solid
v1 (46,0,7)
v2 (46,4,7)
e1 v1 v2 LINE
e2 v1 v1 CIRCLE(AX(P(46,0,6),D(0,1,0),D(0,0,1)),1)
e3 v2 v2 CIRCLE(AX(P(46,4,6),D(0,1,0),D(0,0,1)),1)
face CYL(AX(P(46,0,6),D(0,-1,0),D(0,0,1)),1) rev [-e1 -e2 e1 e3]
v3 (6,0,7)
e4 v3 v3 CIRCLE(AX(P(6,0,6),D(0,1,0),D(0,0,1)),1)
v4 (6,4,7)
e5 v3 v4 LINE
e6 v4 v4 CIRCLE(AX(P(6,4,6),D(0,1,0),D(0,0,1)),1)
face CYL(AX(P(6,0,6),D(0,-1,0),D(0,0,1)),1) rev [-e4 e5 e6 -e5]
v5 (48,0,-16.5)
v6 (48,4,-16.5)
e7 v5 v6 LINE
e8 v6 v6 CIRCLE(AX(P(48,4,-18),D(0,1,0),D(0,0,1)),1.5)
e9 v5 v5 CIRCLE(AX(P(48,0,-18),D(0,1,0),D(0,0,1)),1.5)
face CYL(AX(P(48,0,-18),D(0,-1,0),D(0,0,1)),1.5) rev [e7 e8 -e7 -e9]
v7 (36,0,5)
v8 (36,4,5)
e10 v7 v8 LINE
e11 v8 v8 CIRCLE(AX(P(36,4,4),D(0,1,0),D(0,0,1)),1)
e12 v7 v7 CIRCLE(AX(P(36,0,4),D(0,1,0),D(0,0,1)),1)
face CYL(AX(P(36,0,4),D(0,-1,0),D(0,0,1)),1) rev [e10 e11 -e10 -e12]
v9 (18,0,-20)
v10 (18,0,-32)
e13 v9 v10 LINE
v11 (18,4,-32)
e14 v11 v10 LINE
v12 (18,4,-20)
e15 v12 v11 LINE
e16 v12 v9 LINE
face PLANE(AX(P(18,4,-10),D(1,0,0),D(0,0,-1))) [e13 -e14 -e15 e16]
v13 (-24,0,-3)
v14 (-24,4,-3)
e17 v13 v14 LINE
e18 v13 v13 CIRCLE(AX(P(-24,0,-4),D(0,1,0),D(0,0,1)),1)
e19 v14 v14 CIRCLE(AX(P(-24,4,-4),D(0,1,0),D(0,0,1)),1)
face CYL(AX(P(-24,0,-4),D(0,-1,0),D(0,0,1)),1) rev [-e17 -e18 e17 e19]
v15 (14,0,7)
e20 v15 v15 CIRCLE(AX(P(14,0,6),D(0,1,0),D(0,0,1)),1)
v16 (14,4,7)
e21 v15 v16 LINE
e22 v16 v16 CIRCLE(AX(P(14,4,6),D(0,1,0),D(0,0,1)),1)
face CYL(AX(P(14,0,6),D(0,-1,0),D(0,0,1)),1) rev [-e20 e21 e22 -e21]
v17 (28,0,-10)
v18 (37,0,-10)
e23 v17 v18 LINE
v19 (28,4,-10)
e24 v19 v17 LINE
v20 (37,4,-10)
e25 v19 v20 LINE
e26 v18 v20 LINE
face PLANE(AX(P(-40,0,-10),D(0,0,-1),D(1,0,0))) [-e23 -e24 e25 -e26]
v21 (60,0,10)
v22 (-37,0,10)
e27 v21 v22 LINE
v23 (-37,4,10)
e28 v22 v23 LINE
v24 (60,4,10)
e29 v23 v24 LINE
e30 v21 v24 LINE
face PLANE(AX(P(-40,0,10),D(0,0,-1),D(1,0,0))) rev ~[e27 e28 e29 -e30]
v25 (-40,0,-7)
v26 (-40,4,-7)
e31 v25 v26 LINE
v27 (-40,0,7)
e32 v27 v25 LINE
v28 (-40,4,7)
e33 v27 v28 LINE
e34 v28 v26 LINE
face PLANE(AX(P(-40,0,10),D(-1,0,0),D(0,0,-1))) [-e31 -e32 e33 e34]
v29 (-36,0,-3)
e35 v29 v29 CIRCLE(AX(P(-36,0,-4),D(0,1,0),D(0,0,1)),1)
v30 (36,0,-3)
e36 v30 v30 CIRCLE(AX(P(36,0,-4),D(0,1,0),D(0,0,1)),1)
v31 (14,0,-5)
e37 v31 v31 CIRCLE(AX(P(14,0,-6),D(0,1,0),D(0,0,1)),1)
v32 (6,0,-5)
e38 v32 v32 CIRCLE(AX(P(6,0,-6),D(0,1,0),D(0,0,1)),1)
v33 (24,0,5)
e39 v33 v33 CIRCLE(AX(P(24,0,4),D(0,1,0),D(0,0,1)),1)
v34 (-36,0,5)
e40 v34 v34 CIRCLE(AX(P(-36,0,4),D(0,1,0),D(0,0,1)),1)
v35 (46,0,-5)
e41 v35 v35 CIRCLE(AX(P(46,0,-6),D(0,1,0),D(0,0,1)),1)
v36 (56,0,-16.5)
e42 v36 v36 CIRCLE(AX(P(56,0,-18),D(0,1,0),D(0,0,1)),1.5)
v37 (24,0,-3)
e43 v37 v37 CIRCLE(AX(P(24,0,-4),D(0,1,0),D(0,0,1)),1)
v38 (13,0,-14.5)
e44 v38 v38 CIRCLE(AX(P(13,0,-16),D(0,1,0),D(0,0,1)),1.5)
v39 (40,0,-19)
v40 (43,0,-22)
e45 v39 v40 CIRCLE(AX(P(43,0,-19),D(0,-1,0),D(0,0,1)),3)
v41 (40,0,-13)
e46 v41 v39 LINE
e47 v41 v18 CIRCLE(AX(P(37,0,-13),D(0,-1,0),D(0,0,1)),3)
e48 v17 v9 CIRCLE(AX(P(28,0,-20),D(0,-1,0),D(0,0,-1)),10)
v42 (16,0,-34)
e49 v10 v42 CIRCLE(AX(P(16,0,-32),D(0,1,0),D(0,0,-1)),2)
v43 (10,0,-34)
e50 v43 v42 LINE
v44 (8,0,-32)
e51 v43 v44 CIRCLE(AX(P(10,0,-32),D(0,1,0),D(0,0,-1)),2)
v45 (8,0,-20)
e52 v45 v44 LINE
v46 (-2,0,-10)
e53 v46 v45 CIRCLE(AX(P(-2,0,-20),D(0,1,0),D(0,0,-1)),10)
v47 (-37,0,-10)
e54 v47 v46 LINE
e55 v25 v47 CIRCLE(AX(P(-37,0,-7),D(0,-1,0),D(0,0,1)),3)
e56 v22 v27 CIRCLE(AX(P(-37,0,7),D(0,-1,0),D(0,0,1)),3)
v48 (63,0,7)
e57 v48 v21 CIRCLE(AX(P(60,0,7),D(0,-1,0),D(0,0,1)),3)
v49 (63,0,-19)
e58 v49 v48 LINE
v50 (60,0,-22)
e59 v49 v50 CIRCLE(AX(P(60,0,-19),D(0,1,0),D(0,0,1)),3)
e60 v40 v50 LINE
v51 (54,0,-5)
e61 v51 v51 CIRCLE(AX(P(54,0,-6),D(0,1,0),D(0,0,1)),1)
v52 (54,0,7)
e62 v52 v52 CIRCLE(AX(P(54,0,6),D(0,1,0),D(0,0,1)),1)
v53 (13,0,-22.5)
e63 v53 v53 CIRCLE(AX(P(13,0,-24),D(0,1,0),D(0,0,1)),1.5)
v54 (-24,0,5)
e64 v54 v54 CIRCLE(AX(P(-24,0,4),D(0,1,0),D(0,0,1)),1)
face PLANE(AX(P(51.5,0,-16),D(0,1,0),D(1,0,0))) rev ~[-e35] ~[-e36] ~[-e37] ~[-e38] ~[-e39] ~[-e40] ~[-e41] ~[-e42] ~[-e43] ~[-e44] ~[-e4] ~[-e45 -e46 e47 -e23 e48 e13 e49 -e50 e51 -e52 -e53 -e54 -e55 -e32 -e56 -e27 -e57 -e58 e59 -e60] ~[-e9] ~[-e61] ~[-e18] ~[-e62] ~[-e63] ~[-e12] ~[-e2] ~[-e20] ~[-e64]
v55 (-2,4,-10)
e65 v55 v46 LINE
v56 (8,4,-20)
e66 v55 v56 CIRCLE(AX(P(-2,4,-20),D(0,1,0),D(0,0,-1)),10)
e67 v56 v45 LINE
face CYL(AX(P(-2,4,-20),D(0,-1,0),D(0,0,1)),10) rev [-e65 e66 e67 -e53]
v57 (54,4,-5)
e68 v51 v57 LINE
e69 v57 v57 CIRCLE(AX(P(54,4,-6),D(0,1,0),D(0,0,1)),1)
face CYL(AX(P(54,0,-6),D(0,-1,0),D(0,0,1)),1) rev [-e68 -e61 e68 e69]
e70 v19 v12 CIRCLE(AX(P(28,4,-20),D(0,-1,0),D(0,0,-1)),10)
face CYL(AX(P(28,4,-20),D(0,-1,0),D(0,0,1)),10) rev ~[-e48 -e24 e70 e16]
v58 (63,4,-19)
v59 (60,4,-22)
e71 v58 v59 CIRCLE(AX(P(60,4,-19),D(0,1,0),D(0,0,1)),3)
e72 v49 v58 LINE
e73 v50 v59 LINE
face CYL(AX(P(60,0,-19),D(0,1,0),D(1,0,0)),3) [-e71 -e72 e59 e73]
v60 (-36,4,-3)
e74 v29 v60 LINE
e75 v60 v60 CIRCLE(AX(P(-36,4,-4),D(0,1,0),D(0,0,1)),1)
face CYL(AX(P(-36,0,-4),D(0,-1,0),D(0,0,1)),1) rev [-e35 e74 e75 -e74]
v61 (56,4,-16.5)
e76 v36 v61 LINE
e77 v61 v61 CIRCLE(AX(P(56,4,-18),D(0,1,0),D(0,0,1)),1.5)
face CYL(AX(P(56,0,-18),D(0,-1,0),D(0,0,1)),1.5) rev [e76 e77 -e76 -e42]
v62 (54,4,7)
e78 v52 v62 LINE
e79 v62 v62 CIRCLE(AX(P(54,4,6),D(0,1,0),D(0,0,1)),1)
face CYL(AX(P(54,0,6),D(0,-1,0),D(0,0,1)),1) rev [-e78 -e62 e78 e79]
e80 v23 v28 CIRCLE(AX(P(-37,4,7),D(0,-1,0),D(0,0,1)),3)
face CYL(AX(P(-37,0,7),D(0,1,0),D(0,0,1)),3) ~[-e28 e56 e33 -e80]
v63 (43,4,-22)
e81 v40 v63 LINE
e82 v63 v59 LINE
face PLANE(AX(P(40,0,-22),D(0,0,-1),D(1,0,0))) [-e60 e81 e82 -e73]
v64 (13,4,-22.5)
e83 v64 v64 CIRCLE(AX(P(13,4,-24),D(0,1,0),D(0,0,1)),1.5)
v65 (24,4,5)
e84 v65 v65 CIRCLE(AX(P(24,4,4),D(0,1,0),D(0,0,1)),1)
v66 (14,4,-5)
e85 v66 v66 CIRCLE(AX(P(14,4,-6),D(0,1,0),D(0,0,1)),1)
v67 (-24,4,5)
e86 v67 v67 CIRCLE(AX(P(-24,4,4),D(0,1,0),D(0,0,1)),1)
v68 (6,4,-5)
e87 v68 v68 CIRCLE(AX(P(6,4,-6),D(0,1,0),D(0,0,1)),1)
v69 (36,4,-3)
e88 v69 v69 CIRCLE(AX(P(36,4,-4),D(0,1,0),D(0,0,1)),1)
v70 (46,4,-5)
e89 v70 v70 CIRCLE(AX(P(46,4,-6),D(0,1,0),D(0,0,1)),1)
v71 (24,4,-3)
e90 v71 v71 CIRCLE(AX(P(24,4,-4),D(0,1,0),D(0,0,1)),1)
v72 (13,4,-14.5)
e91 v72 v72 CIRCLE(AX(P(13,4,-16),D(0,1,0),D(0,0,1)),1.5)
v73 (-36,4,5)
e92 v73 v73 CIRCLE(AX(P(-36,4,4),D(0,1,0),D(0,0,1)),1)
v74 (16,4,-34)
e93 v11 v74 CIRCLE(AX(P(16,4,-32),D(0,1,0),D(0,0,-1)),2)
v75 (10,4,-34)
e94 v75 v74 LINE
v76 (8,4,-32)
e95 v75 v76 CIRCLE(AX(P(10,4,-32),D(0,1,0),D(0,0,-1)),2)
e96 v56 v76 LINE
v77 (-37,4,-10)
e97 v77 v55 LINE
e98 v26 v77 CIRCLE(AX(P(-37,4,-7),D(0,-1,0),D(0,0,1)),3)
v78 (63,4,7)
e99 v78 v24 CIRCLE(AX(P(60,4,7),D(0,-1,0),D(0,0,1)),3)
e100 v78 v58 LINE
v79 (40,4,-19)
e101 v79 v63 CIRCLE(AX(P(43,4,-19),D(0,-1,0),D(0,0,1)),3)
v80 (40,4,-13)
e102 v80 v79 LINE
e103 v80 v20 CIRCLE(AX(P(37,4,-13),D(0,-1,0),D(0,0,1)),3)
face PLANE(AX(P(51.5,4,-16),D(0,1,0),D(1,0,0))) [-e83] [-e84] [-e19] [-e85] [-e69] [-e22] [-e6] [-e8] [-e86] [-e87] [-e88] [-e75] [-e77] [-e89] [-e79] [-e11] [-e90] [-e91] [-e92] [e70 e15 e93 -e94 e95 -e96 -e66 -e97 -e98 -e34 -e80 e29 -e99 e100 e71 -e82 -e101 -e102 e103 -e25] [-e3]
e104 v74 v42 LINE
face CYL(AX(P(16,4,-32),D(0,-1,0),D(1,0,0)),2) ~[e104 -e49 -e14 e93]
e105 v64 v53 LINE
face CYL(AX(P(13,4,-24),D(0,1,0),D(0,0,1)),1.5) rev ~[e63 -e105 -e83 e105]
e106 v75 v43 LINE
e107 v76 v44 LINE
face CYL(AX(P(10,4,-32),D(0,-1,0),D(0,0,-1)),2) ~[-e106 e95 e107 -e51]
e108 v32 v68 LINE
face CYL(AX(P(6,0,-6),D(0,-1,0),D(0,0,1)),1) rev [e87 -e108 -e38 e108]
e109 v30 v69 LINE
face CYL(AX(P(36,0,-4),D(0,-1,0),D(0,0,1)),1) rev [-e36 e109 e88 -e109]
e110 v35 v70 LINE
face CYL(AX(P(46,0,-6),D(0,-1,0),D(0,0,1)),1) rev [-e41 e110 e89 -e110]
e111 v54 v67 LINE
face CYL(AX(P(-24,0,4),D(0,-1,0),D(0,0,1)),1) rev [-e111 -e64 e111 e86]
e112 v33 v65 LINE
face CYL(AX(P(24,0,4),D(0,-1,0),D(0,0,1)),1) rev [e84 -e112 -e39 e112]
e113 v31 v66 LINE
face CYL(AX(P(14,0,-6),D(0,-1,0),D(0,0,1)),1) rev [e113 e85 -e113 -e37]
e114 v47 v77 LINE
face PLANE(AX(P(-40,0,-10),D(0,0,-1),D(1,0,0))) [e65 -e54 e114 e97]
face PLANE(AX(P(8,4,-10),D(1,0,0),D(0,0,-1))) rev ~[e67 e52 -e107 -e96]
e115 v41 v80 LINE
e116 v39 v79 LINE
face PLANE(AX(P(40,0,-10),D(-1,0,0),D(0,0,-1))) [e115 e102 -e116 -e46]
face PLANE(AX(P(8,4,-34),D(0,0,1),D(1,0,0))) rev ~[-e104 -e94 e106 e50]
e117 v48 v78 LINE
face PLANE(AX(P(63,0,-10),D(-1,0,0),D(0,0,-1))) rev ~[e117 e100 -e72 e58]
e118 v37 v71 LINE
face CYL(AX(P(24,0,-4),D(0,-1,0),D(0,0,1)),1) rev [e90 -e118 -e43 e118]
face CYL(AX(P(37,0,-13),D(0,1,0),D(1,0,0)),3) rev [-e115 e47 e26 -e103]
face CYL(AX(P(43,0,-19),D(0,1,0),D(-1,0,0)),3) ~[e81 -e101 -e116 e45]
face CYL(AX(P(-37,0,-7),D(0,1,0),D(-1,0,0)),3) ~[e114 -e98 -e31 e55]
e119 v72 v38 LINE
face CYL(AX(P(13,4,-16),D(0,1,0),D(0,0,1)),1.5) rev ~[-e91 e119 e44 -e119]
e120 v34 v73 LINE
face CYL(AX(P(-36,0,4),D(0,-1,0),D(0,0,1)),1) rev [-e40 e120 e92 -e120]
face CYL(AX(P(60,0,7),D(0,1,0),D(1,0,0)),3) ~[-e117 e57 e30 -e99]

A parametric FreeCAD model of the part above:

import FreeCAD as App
import Part
import Sketcher
Q = App.Units.Quantity


def edges_at(feature, points):
    """Names of the edges that pass closest to the given points."""
    edges = feature.Shape.Edges
    near = lambda p: min(range(len(edges)), key=lambda i: edges[i].distToShape(Part.Vertex(*p))[0])
    return sorted({f"Edge{near(p) + 1}" for p in points})

doc = App.newDocument("Part")
params = doc.addObject("Spreadsheet::Sheet", "Params")
for row, (alias, value) in enumerate([
    ("sketch1_diameter", "2 mm"),
    ("sketch1_diameter2", "3 mm"),
    ("sketch1_width", "103 mm"),
    ("sketch1_width2", "23 mm"),
    ("sketch1_height", "20 mm"),
    ("pad1_length", "4 mm"),
    ("fillet_radius", "3 mm"),
    ("sketch2_diameter", "3 mm"),
    ("sketch2_width", "10 mm"),
    ("sketch2_height", "24 mm"),
    ("pad2_length", "4 mm"),
    ("fillet2_radius", "10 mm"),
    ("fillet3_radius", "2 mm"),
], start=1):
    params.set(f"A{row}", alias)
    params.set(f"B{row}", "=" + value)
    params.setAlias(f"B{row}", alias)

body = doc.addObject("PartDesign::Body", "Body")

# Sketch on XZ plane
sketch1 = body.newObject("Sketcher::SketchObject", "Sketch")
sketch1.AttachmentSupport = (doc.getObject("XZ_Plane"), [""])
sketch1.MapMode = "FlatFace"
sketch1.addGeometry([
    Part.LineSegment(App.Vector(-40, -10, 0), App.Vector(-40, 10, 0)),  # 0
    Part.LineSegment(App.Vector(-40, 10, 0), App.Vector(63, 10, 0)),  # 1
    Part.LineSegment(App.Vector(63, 10, 0), App.Vector(63, -22, 0)),  # 2
    Part.LineSegment(App.Vector(63, -22, 0), App.Vector(40, -22, 0)),  # 3
    Part.LineSegment(App.Vector(40, -22, 0), App.Vector(40, -10, 0)),  # 4
    Part.LineSegment(App.Vector(40, -10, 0), App.Vector(-40, -10, 0)),  # 5
    Part.Circle(App.Vector(-36, 4, 0), App.Vector(0, 0, 1), 1),  # 6
    Part.Circle(App.Vector(-24, 4, 0), App.Vector(0, 0, 1), 1),  # 7
    Part.Circle(App.Vector(6, 6, 0), App.Vector(0, 0, 1), 1),  # 8
    Part.Circle(App.Vector(14, 6, 0), App.Vector(0, 0, 1), 1),  # 9
    Part.Circle(App.Vector(24, 4, 0), App.Vector(0, 0, 1), 1),  # 10
    Part.Circle(App.Vector(36, 4, 0), App.Vector(0, 0, 1), 1),  # 11
    Part.Circle(App.Vector(-36, -4, 0), App.Vector(0, 0, 1), 1),  # 12
    Part.Circle(App.Vector(-24, -4, 0), App.Vector(0, 0, 1), 1),  # 13
    Part.Circle(App.Vector(6, -6, 0), App.Vector(0, 0, 1), 1),  # 14
    Part.Circle(App.Vector(14, -6, 0), App.Vector(0, 0, 1), 1),  # 15
    Part.Circle(App.Vector(24, -4, 0), App.Vector(0, 0, 1), 1),  # 16
    Part.Circle(App.Vector(36, -4, 0), App.Vector(0, 0, 1), 1),  # 17
    Part.Circle(App.Vector(54, -6, 0), App.Vector(0, 0, 1), 1),  # 18
    Part.Circle(App.Vector(46, 6, 0), App.Vector(0, 0, 1), 1),  # 19
    Part.Circle(App.Vector(54, 6, 0), App.Vector(0, 0, 1), 1),  # 20
    Part.Circle(App.Vector(46, -6, 0), App.Vector(0, 0, 1), 1),  # 21
    Part.Circle(App.Vector(56, -18, 0), App.Vector(0, 0, 1), 1.5),  # 22
    Part.Circle(App.Vector(48, -18, 0), App.Vector(0, 0, 1), 1.5),  # 23
], False)
sketch1.addConstraint([
    Sketcher.Constraint("Coincident", 0, 2, 1, 1),
    Sketcher.Constraint("Coincident", 1, 2, 2, 1),
    Sketcher.Constraint("Coincident", 2, 2, 3, 1),
    Sketcher.Constraint("Coincident", 3, 2, 4, 1),
    Sketcher.Constraint("Coincident", 4, 2, 5, 1),
    Sketcher.Constraint("Coincident", 5, 2, 0, 1),
    Sketcher.Constraint("Vertical", 0),
    Sketcher.Constraint("Horizontal", 1),
    Sketcher.Constraint("Vertical", 2),
    Sketcher.Constraint("Horizontal", 3),
    Sketcher.Constraint("Vertical", 4),
    Sketcher.Constraint("Horizontal", 5),
    Sketcher.Constraint("Equal", 6, 7),
    Sketcher.Constraint("Equal", 7, 8),
    Sketcher.Constraint("Equal", 8, 9),
    Sketcher.Constraint("Equal", 9, 10),
    Sketcher.Constraint("Equal", 10, 11),
    Sketcher.Constraint("Equal", 11, 12),
    Sketcher.Constraint("Equal", 12, 13),
    Sketcher.Constraint("Equal", 13, 14),
    Sketcher.Constraint("Equal", 14, 15),
    Sketcher.Constraint("Equal", 15, 16),
    Sketcher.Constraint("Equal", 16, 17),
    Sketcher.Constraint("Equal", 17, 18),
    Sketcher.Constraint("Equal", 18, 19),
    Sketcher.Constraint("Equal", 19, 20),
    Sketcher.Constraint("Equal", 20, 21),
    Sketcher.Constraint("Equal", 22, 23),
    Sketcher.Constraint("Symmetric", 11, 3, 12, 3, -1, 1),
    Sketcher.Constraint("Symmetric", 10, 3, 13, 3, -1, 1),
    Sketcher.Constraint("Symmetric", 7, 3, 16, 3, -1, 1),
    Sketcher.Constraint("Symmetric", 6, 3, 17, 3, -1, 1),
    Sketcher.Constraint("Symmetric", 0, 2, 4, 2, -1, 1),
    Sketcher.Constraint("Symmetric", 7, 3, 10, 3, -2),
    Sketcher.Constraint("Symmetric", 6, 3, 11, 3, -2),
    Sketcher.Constraint("Symmetric", 8, 3, 14, 3, -1),
    Sketcher.Constraint("Symmetric", 9, 3, 15, 3, -1),
    Sketcher.Constraint("Symmetric", 18, 3, 20, 3, -1),
    Sketcher.Constraint("Symmetric", 19, 3, 21, 3, -1),
    Sketcher.Constraint("Horizontal", 6, 3, 7, 3),
    Sketcher.Constraint("Horizontal", 8, 3, 9, 3),
    Sketcher.Constraint("Horizontal", 15, 3, 18, 3),
    Sketcher.Constraint("Horizontal", 9, 3, 19, 3),
    Sketcher.Constraint("Horizontal", 22, 3, 23, 3),
    Sketcher.Constraint("Diameter", 6, Q("2 mm")),
    Sketcher.Constraint("Diameter", 22, Q("3 mm")),
    Sketcher.Constraint("DistanceX", 1, 1, 1, 2, Q("103 mm")),
    Sketcher.Constraint("DistanceX", 3, 2, 3, 1, Q("23 mm")),
    Sketcher.Constraint("DistanceY", 0, 1, 0, 2, Q("20 mm")),
    Sketcher.Constraint("DistanceY", 2, 2, 2, 1, Q("32 mm")),
    Sketcher.Constraint("DistanceX", 6, 3, -1, 1, Q("36 mm")),
    Sketcher.Constraint("DistanceY", -1, 1, 6, 3, Q("4 mm")),
    Sketcher.Constraint("DistanceX", 7, 3, -1, 1, Q("24 mm")),
    Sketcher.Constraint("DistanceX", -1, 1, 8, 3, Q("6 mm")),
    Sketcher.Constraint("DistanceY", -1, 1, 8, 3, Q("6 mm")),
    Sketcher.Constraint("DistanceX", -1, 1, 9, 3, Q("14 mm")),
    Sketcher.Constraint("DistanceX", -1, 1, 18, 3, Q("54 mm")),
    Sketcher.Constraint("DistanceX", -1, 1, 19, 3, Q("46 mm")),
    Sketcher.Constraint("DistanceX", -1, 1, 22, 3, Q("56 mm")),
    Sketcher.Constraint("DistanceY", 22, 3, -1, 1, Q("18 mm")),
    Sketcher.Constraint("DistanceX", -1, 1, 23, 3, Q("48 mm")),
])
sketch1.setExpression("Constraints[44]", "Params.sketch1_diameter")
sketch1.setExpression("Constraints[45]", "Params.sketch1_diameter2")
sketch1.setExpression("Constraints[46]", "Params.sketch1_width")
sketch1.setExpression("Constraints[47]", "Params.sketch1_width2")
sketch1.setExpression("Constraints[48]", "Params.sketch1_height")
pad1 = body.newObject("PartDesign::Pad", "Pad")
pad1.Profile = sketch1
pad1.setExpression("Length", "Params.pad1_length")
pad1.Reversed = True
doc.recompute()

fillet = body.newObject("PartDesign::Fillet", "Fillet")
fillet.Base = (pad1, edges_at(pad1, [
    (-40, 2, 10),
    (-40, 2, -10),
    (40, 2, -10),
    (40, 2, -22),
    (63, 2, -22),
    (63, 2, 10),
]))
fillet.setExpression("Radius", "Params.fillet_radius")

# Sketch on XZ plane
sketch2 = body.newObject("Sketcher::SketchObject", "Sketch001")
sketch2.AttachmentSupport = (doc.getObject("XZ_Plane"), [""])
sketch2.MapMode = "FlatFace"
sketch2.AttachmentOffset = App.Placement(App.Vector(0, 0, -4), App.Rotation())
sketch2.addGeometry([
    Part.LineSegment(App.Vector(8, -34, 0), App.Vector(8, -10, 0)),  # 0
    Part.LineSegment(App.Vector(8, -10, 0), App.Vector(18, -10, 0)),  # 1
    Part.LineSegment(App.Vector(18, -10, 0), App.Vector(18, -34, 0)),  # 2
    Part.LineSegment(App.Vector(18, -34, 0), App.Vector(8, -34, 0)),  # 3
    Part.Circle(App.Vector(13, -16, 0), App.Vector(0, 0, 1), 1.5),  # 4
    Part.Circle(App.Vector(13, -24, 0), App.Vector(0, 0, 1), 1.5),  # 5
], False)
sketch2.addConstraint([
    Sketcher.Constraint("Coincident", 0, 2, 1, 1),
    Sketcher.Constraint("Coincident", 1, 2, 2, 1),
    Sketcher.Constraint("Coincident", 2, 2, 3, 1),
    Sketcher.Constraint("Coincident", 3, 2, 0, 1),
    Sketcher.Constraint("Vertical", 0),
    Sketcher.Constraint("Horizontal", 1),
    Sketcher.Constraint("Vertical", 2),
    Sketcher.Constraint("Horizontal", 3),
    Sketcher.Constraint("Equal", 4, 5),
    Sketcher.Constraint("Vertical", 4, 3, 5, 3),
    Sketcher.Constraint("Diameter", 4, Q("3 mm")),
    Sketcher.Constraint("DistanceX", 1, 1, 1, 2, Q("10 mm")),
    Sketcher.Constraint("DistanceY", 0, 1, 0, 2, Q("24 mm")),
    Sketcher.Constraint("DistanceX", -1, 1, 4, 3, Q("13 mm")),
    Sketcher.Constraint("DistanceY", 4, 3, -1, 1, Q("16 mm")),
    Sketcher.Constraint("DistanceY", 5, 3, -1, 1, Q("24 mm")),
    Sketcher.Constraint("DistanceX", -1, 1, 0, 2, Q("8 mm")),
    Sketcher.Constraint("DistanceY", 0, 2, -1, 1, Q("10 mm")),
])
sketch2.setExpression("Constraints[10]", "Params.sketch2_diameter")
sketch2.setExpression("Constraints[11]", "Params.sketch2_width")
sketch2.setExpression("Constraints[12]", "Params.sketch2_height")
pad2 = body.newObject("PartDesign::Pad", "Pad001")
pad2.Profile = sketch2
pad2.setExpression("Length", "Params.pad2_length")
doc.recompute()

fillet2 = body.newObject("PartDesign::Fillet", "Fillet001")
fillet2.Base = (pad2, edges_at(pad2, [(18, 2, -10), (8, 2, -10)]))
fillet2.setExpression("Radius", "Params.fillet2_radius")
doc.recompute()

fillet3 = body.newObject("PartDesign::Fillet", "Fillet002")
fillet3.Base = (fillet2, edges_at(fillet2, [(8, 2, -34), (18, 2, -34)]))
fillet3.setExpression("Radius", "Params.fillet3_radius")

doc.recompute()
